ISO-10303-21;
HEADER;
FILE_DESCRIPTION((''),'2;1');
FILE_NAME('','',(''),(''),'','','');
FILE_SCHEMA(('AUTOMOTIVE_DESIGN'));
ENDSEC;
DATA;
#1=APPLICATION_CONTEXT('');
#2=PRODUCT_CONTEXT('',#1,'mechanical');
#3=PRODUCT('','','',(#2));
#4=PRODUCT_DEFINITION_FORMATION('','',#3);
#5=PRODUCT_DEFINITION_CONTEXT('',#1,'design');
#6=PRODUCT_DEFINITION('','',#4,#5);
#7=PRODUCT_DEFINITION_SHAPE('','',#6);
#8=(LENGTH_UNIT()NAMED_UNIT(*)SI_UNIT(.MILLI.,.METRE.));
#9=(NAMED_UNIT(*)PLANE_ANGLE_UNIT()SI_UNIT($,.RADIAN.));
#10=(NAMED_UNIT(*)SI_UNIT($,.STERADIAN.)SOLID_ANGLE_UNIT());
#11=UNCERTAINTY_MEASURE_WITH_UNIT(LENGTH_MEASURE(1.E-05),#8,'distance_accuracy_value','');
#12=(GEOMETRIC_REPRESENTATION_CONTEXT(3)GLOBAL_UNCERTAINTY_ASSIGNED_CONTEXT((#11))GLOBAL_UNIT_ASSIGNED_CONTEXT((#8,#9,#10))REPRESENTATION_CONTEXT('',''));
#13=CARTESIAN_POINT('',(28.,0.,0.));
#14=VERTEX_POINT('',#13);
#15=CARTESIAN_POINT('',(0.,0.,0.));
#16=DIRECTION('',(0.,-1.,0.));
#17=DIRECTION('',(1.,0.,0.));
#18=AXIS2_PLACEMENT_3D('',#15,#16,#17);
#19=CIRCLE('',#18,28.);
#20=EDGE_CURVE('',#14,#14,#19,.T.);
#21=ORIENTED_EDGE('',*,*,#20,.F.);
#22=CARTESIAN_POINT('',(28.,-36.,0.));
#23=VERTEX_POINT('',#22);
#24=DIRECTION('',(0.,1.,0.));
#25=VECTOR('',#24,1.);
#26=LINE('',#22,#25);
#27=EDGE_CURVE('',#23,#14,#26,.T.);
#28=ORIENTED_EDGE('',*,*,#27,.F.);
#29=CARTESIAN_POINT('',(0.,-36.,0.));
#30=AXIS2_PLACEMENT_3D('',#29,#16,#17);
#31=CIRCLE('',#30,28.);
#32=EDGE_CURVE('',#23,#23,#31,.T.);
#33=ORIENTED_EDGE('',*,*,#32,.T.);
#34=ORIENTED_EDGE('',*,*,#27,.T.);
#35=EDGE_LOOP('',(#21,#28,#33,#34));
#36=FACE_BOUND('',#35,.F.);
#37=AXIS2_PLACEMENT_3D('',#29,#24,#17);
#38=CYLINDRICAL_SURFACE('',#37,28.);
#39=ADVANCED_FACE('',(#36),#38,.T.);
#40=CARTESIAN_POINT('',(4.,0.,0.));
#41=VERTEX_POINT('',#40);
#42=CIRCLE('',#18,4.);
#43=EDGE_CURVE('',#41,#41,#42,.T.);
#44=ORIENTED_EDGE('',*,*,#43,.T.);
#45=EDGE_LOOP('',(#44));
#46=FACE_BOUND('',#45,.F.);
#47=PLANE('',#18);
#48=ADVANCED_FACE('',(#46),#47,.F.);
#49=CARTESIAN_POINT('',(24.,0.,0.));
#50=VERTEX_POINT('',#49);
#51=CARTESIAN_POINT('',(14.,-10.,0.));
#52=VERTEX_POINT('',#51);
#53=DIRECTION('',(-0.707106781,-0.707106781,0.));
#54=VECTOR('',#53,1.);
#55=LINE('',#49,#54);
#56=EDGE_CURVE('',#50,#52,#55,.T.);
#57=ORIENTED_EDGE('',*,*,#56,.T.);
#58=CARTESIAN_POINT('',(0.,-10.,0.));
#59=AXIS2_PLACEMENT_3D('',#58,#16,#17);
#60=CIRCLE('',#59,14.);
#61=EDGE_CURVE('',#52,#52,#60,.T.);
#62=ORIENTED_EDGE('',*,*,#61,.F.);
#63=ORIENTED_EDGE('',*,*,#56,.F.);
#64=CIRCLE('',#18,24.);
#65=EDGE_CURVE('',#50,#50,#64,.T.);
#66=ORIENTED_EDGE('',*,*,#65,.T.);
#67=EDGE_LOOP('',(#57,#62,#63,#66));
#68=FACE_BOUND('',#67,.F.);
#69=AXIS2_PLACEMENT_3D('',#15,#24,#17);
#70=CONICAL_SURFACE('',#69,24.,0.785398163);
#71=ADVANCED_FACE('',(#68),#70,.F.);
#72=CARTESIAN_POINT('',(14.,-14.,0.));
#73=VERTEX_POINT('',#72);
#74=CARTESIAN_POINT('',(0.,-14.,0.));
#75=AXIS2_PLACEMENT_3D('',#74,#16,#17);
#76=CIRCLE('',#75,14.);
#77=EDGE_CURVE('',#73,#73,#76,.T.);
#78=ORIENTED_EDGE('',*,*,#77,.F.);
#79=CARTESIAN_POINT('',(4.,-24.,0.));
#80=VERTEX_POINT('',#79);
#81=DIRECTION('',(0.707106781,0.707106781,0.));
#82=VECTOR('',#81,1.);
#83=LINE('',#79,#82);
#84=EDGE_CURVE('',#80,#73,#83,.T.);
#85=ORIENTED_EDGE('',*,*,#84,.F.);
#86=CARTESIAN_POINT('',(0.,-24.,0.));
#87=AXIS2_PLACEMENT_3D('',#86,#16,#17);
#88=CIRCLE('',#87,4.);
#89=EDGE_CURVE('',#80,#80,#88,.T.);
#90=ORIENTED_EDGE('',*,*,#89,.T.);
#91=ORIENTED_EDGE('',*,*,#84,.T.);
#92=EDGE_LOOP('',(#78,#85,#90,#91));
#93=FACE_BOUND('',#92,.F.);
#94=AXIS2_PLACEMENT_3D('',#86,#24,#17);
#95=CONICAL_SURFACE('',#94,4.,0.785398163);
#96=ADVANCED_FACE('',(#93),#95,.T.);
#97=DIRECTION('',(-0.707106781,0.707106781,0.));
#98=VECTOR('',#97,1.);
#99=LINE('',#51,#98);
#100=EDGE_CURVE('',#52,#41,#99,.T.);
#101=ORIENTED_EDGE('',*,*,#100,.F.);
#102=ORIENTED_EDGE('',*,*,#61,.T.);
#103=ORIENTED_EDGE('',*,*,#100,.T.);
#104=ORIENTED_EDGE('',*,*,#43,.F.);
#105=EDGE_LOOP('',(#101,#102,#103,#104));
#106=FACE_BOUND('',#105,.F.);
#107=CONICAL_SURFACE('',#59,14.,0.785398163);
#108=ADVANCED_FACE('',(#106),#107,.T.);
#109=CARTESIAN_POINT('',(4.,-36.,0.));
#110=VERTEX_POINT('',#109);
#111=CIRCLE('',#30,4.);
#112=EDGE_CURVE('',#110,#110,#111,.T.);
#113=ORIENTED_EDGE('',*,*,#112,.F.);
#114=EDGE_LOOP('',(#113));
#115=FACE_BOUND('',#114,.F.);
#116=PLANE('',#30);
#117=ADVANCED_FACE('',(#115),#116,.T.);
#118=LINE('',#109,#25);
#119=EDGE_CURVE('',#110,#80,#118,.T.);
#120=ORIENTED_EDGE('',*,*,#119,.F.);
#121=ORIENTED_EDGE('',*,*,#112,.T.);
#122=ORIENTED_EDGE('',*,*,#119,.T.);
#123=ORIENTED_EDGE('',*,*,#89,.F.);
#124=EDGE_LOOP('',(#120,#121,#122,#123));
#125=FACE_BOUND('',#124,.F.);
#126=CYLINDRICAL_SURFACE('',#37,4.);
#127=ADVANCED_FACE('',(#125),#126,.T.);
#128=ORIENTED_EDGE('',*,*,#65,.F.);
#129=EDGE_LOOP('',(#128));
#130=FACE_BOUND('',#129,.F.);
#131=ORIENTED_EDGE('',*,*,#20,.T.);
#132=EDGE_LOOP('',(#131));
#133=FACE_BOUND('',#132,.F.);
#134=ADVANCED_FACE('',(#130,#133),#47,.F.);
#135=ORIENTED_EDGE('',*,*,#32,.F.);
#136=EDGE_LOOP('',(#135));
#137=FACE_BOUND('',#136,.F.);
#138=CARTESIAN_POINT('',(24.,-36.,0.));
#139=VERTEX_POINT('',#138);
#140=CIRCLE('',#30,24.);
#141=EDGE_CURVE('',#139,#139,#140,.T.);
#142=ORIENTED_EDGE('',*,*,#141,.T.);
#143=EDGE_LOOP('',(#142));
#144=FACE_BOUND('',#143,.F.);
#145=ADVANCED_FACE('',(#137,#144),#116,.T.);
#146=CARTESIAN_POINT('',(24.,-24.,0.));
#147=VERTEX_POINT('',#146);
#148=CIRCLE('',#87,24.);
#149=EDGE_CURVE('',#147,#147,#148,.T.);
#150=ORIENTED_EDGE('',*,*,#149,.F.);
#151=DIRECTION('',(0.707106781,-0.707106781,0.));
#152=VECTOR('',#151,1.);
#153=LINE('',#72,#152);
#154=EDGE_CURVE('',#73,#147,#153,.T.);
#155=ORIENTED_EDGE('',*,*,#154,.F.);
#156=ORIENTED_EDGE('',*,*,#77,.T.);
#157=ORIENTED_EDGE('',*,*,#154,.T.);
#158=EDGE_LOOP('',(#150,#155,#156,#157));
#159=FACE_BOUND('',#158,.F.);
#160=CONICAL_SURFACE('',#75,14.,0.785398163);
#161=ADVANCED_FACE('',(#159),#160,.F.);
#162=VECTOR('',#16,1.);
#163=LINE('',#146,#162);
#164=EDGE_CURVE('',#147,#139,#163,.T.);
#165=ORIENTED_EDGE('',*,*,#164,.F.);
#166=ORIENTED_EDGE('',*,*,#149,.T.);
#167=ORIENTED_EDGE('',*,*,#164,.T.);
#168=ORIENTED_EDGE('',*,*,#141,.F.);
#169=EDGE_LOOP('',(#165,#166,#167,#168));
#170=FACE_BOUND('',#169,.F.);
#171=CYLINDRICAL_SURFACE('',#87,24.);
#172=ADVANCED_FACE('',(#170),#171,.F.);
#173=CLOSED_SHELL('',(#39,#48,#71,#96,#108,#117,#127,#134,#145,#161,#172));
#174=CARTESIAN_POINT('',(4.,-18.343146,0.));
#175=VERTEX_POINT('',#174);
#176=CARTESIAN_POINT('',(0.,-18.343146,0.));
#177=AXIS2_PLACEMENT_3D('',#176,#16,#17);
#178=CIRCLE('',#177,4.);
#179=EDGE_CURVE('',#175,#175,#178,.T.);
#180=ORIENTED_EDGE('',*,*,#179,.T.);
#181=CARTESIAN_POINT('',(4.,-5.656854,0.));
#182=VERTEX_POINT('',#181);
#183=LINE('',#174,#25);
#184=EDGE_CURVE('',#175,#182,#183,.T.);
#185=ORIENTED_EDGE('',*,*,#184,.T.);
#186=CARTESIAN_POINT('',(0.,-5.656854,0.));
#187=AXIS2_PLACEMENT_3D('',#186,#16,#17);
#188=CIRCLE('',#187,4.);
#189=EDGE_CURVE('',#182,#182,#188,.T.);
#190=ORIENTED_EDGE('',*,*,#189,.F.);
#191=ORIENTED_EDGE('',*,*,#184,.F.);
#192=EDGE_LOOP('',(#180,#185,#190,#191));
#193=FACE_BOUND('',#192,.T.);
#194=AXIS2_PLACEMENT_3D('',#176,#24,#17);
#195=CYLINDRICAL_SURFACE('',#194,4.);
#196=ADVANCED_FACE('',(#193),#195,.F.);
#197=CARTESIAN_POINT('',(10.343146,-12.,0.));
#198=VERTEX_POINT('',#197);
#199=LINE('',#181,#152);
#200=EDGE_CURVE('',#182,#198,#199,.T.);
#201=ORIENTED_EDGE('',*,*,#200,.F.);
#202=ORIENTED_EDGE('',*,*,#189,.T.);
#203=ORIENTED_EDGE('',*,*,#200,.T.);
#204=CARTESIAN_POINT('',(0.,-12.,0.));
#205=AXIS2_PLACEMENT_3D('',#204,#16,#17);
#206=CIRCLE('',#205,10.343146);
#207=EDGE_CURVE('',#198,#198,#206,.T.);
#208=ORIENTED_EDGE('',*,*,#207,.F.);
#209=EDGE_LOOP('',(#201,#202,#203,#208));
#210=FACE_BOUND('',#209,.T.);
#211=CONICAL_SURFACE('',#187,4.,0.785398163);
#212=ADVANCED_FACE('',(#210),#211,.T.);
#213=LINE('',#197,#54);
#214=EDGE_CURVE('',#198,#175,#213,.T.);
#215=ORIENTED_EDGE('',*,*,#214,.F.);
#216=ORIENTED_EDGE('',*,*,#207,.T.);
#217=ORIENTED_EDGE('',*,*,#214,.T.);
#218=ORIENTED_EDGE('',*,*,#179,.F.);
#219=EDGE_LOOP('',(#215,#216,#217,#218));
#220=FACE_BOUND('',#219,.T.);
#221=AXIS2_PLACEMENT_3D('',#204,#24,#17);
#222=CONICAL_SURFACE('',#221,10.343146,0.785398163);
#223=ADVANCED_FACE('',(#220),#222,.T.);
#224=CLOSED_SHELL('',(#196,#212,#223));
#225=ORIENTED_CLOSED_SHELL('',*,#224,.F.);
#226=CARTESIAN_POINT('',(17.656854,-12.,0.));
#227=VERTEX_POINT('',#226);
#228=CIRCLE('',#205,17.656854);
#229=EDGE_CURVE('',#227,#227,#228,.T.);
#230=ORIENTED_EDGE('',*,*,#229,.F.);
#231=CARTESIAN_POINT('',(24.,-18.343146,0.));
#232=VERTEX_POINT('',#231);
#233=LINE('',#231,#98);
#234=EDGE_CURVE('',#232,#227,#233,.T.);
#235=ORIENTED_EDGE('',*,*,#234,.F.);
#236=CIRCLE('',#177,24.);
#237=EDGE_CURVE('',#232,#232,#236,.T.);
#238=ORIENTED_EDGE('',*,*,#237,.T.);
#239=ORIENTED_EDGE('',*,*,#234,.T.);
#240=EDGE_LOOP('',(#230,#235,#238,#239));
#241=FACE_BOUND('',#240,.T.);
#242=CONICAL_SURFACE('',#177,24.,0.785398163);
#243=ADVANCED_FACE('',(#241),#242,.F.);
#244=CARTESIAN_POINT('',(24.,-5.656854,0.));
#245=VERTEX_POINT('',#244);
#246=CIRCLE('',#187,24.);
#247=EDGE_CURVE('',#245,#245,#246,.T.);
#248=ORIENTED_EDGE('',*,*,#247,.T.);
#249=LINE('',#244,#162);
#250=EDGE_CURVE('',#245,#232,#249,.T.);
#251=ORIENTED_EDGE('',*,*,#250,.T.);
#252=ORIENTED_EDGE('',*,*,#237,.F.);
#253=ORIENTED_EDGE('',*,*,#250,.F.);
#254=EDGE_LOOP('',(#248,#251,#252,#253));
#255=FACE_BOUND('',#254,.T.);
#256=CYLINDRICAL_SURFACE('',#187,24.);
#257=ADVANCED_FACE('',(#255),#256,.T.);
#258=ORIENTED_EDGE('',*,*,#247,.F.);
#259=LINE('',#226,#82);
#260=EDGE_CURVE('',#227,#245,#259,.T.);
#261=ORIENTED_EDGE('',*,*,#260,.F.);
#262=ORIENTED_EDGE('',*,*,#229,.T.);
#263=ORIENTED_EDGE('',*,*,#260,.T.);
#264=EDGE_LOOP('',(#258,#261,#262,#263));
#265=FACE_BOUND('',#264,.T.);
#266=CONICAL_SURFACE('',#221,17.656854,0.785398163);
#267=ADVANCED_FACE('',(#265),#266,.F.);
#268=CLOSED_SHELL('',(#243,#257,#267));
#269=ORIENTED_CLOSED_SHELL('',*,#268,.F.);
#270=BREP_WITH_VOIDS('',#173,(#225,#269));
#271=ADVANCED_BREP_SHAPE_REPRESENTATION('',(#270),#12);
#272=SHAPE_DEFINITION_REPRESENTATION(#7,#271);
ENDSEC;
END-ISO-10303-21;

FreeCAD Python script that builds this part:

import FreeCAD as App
import Part
import Sketcher
Q = App.Units.Quantity


def add_polygon(sketch, points):
    """Adds a closed chain of lines whose ends are joined by coincident constraints."""
    first, n = sketch.GeometryCount, len(points)
    for a, b in zip(points, points[1:] + points[:1]):
        sketch.addGeometry(Part.LineSegment(App.Vector(*a, 0), App.Vector(*b, 0)), False)
    for i in range(n):
        sketch.addConstraint(Sketcher.Constraint("Coincident", first + i, 2, first + (i + 1) % n, 1))

doc = App.newDocument("Part")
body = doc.addObject("PartDesign::Body", "Body")

sketch1 = body.newObject("Sketcher::SketchObject", "Sketch")
sketch1.AttachmentSupport = (doc.getObject("XY_Plane"), [""])
sketch1.MapMode = "FlatFace"
add_polygon(sketch1, [(4, -36), (4, -24), (14, -14), (24, -24), (24, -36), (28, -36), (28, 0), (24, 0), (14, -10), (4, 0), (0, 0), (0, -36)])
add_polygon(sketch1, [(4, -5.656854), (10.343146, -12), (4, -18.343146)])
add_polygon(sketch1, [(24, -5.656854), (24, -18.343146), (17.656854, -12)])
sketch1.addConstraint([
    Sketcher.Constraint("Vertical", 0),
    Sketcher.Constraint("Vertical", 3),
    Sketcher.Constraint("Horizontal", 4),
    Sketcher.Constraint("Vertical", 5),
    Sketcher.Constraint("Horizontal", 6),
    Sketcher.Constraint("Horizontal", 9),
    Sketcher.Constraint("Vertical", 10),
    Sketcher.Constraint("Horizontal", 11),
    Sketcher.Constraint("Vertical", 14),
    Sketcher.Constraint("Vertical", 15),
    Sketcher.Constraint("Coincident", 9, 2, -1, 1),
    Sketcher.Constraint("PointOnObject", 5, 2, -1),
    Sketcher.Constraint("Perpendicular", 1, 2),
    Sketcher.Constraint("Perpendicular", 2, 7),
    Sketcher.Constraint("Perpendicular", 7, 8),
    Sketcher.Constraint("Parallel", 8, 12),
    Sketcher.Constraint("Perpendicular", 12, 13),
    Sketcher.Constraint("Perpendicular", 13, 16),
    Sketcher.Constraint("Perpendicular", 16, 17),
    Sketcher.Constraint("Horizontal", 0, 2, 2, 2),
    Sketcher.Constraint("Horizontal", 4, 2, 10, 2),
    Sketcher.Constraint("Horizontal", 13, 2, 15, 2),
    Sketcher.Constraint("Horizontal", 12, 2, 16, 2),
    Sketcher.Constraint("Horizontal", 14, 2, 17, 2),
    Sketcher.Constraint("Vertical", 3, 2, 6, 2),
    Sketcher.Constraint("Vertical", 1, 2, 7, 2),
    Sketcher.Constraint("Vertical", 11, 2, 13, 2),
    Sketcher.Constraint("Vertical", 6, 2, 15, 2),
    Sketcher.Constraint("Equal", 6, 9),
    Sketcher.Constraint("DistanceX", 4, 1, 4, 2, Q("4 mm")),
    Sketcher.Constraint("DistanceY", 0, 1, 0, 2, Q("12 mm")),
    Sketcher.Constraint("DistanceY", 5, 1, 5, 2, Q("36 mm")),
    Sketcher.Constraint("DistanceX", -1, 1, 1, 2, Q("14 mm")),
    Sketcher.Constraint("DistanceY", 12, 2, -1, 1, Q("12 mm")),
    Sketcher.Constraint("DistanceY", 14, 1, 14, 2, Q("12.686292 mm")),
])
revolution = body.newObject("PartDesign::Revolution", "Revolution")
revolution.Profile = sketch1
revolution.ReferenceAxis = (sketch1, ["V_Axis"])
revolution.Angle = 360

doc.recompute()
